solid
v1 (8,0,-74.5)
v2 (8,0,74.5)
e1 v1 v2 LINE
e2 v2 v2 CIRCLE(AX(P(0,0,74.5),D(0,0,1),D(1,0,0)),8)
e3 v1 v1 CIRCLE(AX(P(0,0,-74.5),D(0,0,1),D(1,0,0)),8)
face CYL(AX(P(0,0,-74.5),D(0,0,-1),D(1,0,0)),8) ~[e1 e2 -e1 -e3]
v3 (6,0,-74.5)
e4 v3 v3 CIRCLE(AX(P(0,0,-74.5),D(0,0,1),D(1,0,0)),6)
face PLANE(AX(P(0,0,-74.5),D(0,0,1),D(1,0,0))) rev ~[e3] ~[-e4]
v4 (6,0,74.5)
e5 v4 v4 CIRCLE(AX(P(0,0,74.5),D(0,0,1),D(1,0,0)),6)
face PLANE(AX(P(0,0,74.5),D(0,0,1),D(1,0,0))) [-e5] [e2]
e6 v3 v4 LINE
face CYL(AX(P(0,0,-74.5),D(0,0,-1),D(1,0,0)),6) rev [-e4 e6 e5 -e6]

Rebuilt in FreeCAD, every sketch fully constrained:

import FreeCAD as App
import Part
import Sketcher
Q = App.Units.Quantity

doc = App.newDocument("Part")
params = doc.addObject("Spreadsheet::Sheet", "Params")
for row, (alias, value) in enumerate([
    ("sketch1_diameter", "16 mm"),
    ("sketch1_diameter2", "12 mm"),
    ("pad1_length", "149 mm"),
], start=1):
    params.set(f"A{row}", alias)
    params.set(f"B{row}", "=" + value)
    params.setAlias(f"B{row}", alias)

body = doc.addObject("PartDesign::Body", "Body")

sketch1 = doc.addObject("Sketcher::SketchObject", "Sketch")
body.addObject(sketch1)
sketch1.AttachmentSupport = (doc.XY_Plane, [""])
sketch1.MapMode = "FlatFace"
sketch1.AttachmentOffset = App.Placement(App.Vector(0, 0, -74.5), App.Rotation())
sketch1.addGeometry(Part.Circle(App.Vector(0, 0, 0), App.Vector(0, 0, 1), 8), False)
sketch1.addGeometry(Part.Circle(App.Vector(0, 0, 0), App.Vector(0, 0, 1), 6), False)
sketch1.addConstraint(Sketcher.Constraint("Coincident", 0, 3, -1, 1))
sketch1.addConstraint(Sketcher.Constraint("Coincident", 1, 3, -1, 1))
sketch1.addConstraint(Sketcher.Constraint("Diameter", 0, Q("16 mm")))
sketch1.addConstraint(Sketcher.Constraint("Diameter", 1, Q("12 mm")))
sketch1.setExpression("Constraints[2]", "Params.sketch1_diameter")
sketch1.setExpression("Constraints[3]", "Params.sketch1_diameter2")
pad1 = doc.addObject("PartDesign::Pad", "Pad")
body.addObject(pad1)
pad1.Profile = sketch1
pad1.setExpression("Length", "Params.pad1_length")

doc.recompute()
